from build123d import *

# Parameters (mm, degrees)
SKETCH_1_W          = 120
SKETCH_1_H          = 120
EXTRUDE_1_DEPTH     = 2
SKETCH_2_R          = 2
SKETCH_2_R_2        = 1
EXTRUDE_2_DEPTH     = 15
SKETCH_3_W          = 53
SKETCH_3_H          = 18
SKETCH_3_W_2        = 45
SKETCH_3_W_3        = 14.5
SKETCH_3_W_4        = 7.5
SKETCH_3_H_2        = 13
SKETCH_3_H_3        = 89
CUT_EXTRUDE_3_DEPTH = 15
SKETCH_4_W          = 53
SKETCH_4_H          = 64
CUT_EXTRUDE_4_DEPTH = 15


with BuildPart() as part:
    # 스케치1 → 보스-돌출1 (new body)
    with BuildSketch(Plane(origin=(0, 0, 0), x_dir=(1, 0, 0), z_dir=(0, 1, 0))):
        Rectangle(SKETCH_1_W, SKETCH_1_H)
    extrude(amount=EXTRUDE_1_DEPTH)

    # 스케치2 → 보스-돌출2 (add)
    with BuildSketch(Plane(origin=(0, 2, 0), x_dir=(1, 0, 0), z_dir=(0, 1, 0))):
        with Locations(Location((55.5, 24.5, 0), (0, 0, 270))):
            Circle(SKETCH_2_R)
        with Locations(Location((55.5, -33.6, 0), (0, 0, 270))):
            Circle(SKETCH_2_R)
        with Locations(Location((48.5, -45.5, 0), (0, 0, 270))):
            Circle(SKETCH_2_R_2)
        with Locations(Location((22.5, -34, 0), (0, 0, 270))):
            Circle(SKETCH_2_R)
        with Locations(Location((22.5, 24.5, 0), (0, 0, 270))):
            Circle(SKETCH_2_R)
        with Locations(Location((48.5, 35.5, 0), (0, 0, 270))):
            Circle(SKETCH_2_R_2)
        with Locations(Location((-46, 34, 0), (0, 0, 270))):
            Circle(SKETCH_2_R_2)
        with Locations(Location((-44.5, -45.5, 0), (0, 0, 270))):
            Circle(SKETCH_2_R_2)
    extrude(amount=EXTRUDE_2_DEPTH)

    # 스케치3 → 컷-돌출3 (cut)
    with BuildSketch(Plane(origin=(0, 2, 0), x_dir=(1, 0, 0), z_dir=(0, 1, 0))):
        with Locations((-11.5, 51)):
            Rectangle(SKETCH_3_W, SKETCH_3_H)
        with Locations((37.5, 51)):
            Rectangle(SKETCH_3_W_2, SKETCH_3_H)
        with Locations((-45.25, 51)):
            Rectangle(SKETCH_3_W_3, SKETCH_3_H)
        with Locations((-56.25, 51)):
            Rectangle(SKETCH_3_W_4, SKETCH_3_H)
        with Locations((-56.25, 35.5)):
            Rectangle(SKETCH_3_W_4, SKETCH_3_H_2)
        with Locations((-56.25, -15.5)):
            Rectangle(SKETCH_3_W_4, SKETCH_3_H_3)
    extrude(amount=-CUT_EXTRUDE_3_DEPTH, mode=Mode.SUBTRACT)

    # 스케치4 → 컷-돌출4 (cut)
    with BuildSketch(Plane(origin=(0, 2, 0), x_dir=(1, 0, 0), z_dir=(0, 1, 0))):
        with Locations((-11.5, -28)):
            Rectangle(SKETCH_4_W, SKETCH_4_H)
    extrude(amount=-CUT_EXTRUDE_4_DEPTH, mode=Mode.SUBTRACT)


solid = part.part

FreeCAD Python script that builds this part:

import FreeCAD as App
import Part
import Sketcher
from FreeCAD import Vector


def add_polygon(sketch, points):
    """Adds a closed chain of lines whose ends are joined by coincident constraints."""
    first, n = sketch.GeometryCount, len(points)
    for a, b in zip(points, points[1:] + points[:1]):
        sketch.addGeometry(Part.LineSegment(App.Vector(*a, 0), App.Vector(*b, 0)), False)
    for i in range(n):
        sketch.addConstraint(Sketcher.Constraint("Coincident", first + i, 2, first + (i + 1) % n, 1))

doc = App.newDocument("Part")
body = doc.addObject("PartDesign::Body", "Body")

# Sketch on XZ plane
sketch1 = doc.addObject("Sketcher::SketchObject", "Sketch")
body.addObject(sketch1)
sketch1.AttachmentSupport = (doc.XZ_Plane, [""])
sketch1.MapMode = "FlatFace"
add_polygon(sketch1, [(-60, -60), (-60, 60), (60, 60), (60, -60)])  # lines 0-3
sketch1.addConstraint([
    Sketcher.Constraint("Vertical", 0),
    Sketcher.Constraint("Horizontal", 1),
    Sketcher.Constraint("Vertical", 2),
    Sketcher.Constraint("Horizontal", 3),
    Sketcher.Constraint("Symmetric", 0, 2, 2, 2, -1, 1),
    Sketcher.Constraint("Equal", 3, 0),
    Sketcher.Constraint("DistanceX", 1, 1, 1, 2, 120.0),
])
pad1 = doc.addObject("PartDesign::Pad", "Pad")
body.addObject(pad1)
pad1.Profile = sketch1
pad1.Length = 2
pad1.Reversed = True

# Sketch on XZ plane
sketch2 = doc.addObject("Sketcher::SketchObject", "Sketch001")
body.addObject(sketch2)
sketch2.AttachmentSupport = (doc.XZ_Plane, [""])
sketch2.MapMode = "FlatFace"
sketch2.AttachmentOffset = App.Placement(Vector(0, 0, -2), App.Rotation())
sketch2.addGeometry([
    Part.Circle(Vector(55.5, -24.5, 0), Vector(0, 0, 1), 2),  # 0
    Part.Circle(Vector(55.5, 33.6, 0), Vector(0, 0, 1), 2),  # 1
    Part.Circle(Vector(48.5, 45.5, 0), Vector(0, 0, 1), 1),  # 2
    Part.Circle(Vector(22.5, 34, 0), Vector(0, 0, 1), 2),  # 3
    Part.Circle(Vector(22.5, -24.5, 0), Vector(0, 0, 1), 2),  # 4
    Part.Circle(Vector(48.5, -35.5, 0), Vector(0, 0, 1), 1),  # 5
    Part.Circle(Vector(-46, -34, 0), Vector(0, 0, 1), 1),  # 6
    Part.Circle(Vector(-44.5, 45.5, 0), Vector(0, 0, 1), 1),  # 7
], False)
sketch2.addConstraint([
    Sketcher.Constraint("Equal", 0, 1),
    Sketcher.Constraint("Equal", 1, 3),
    Sketcher.Constraint("Equal", 3, 4),
    Sketcher.Constraint("Equal", 2, 5),
    Sketcher.Constraint("Equal", 5, 6),
    Sketcher.Constraint("Equal", 6, 7),
    Sketcher.Constraint("Horizontal", 0, 3, 4, 3),
    Sketcher.Constraint("Horizontal", 2, 3, 7, 3),
    Sketcher.Constraint("Vertical", 0, 3, 1, 3),
    Sketcher.Constraint("Vertical", 3, 3, 4, 3),
    Sketcher.Constraint("Vertical", 2, 3, 5, 3),
    Sketcher.Constraint("Diameter", 0, 4.0),
    Sketcher.Constraint("Diameter", 2, 2.0),
    Sketcher.Constraint("DistanceY", -1, 1, 3, 3, 34.0),
    Sketcher.Constraint("DistanceX", 6, 3, -1, 1, 46.0),
    Sketcher.Constraint("DistanceY", 6, 3, -1, 1, 34.0),
    Sketcher.Constraint("DistanceX", 2, 3, 1, 3, 7.0),
    Sketcher.Constraint("DistanceY", 0, 3, 2, 3, 70.0),
    Sketcher.Constraint("DistanceX", 3, 3, 2, 3, 26.0),
    Sketcher.Constraint("DistanceY", 5, 3, 0, 3, 11.0),
    Sketcher.Constraint("DistanceX", 7, 3, 3, 3, 67.0),
    Sketcher.Constraint("DistanceX", -1, 1, 0, 3, 55.5),
    Sketcher.Constraint("DistanceY", 0, 3, -1, 1, 24.5),
    Sketcher.Constraint("DistanceY", -1, 1, 1, 3, 33.6),
])
pad2 = doc.addObject("PartDesign::Pad", "Pad001")
body.addObject(pad2)
pad2.Profile = sketch2
pad2.Length = 15
pad2.Reversed = True

# Sketch on XZ plane
sketch3 = doc.addObject("Sketcher::SketchObject", "Sketch002")
body.addObject(sketch3)
sketch3.AttachmentSupport = (doc.XZ_Plane, [""])
sketch3.MapMode = "FlatFace"
sketch3.AttachmentOffset = App.Placement(Vector(0, 0, -2), App.Rotation())
add_polygon(sketch3, [(60, -42), (60, -60), (-60, -60), (-60, 60), (-52, 60), (-52, -42)])  # lines 0-5
sketch3.addConstraint([
    Sketcher.Constraint("Vertical", 0),
    Sketcher.Constraint("Horizontal", 1),
    Sketcher.Constraint("Vertical", 2),
    Sketcher.Constraint("Horizontal", 3),
    Sketcher.Constraint("Vertical", 4),
    Sketcher.Constraint("Horizontal", 5),
    Sketcher.Constraint("Symmetric", 0, 2, 2, 2, -1, 1),
    Sketcher.Constraint("Equal", 1, 2),
    Sketcher.Constraint("DistanceX", 1, 2, 1, 1, 120.0),
    Sketcher.Constraint("DistanceY", 0, 2, 0, 1, 18.0),
    Sketcher.Constraint("DistanceX", 3, 1, 3, 2, 7.5),
])
pocket1 = doc.addObject("PartDesign::Pocket", "Pocket")
body.addObject(pocket1)
pocket1.Profile = sketch3
pocket1.Length = 15
pocket1.Reversed = True

# Sketch on XZ plane
sketch4 = doc.addObject("Sketcher::SketchObject", "Sketch003")
body.addObject(sketch4)
sketch4.AttachmentSupport = (doc.XZ_Plane, [""])
sketch4.MapMode = "FlatFace"
sketch4.AttachmentOffset = App.Placement(Vector(0, 0, -2), App.Rotation())
add_polygon(sketch4, [(-38, -4), (-38, 60), (15, 60), (15, -4)])  # lines 0-3
sketch4.addConstraint([
    Sketcher.Constraint("Vertical", 0),
    Sketcher.Constraint("Horizontal", 1),
    Sketcher.Constraint("Vertical", 2),
    Sketcher.Constraint("Horizontal", 3),
    Sketcher.Constraint("DistanceX", 1, 1, 1, 2, 53.0),
    Sketcher.Constraint("DistanceY", 0, 1, 0, 2, 64.0),
    Sketcher.Constraint("DistanceX", 0, 2, -1, 1, 38.0),
    Sketcher.Constraint("DistanceY", -1, 1, 0, 2, 60.0),
])
pocket2 = doc.addObject("PartDesign::Pocket", "Pocket001")
body.addObject(pocket2)
pocket2.Profile = sketch4
pocket2.Length = 15
pocket2.Reversed = True

doc.recompute()
